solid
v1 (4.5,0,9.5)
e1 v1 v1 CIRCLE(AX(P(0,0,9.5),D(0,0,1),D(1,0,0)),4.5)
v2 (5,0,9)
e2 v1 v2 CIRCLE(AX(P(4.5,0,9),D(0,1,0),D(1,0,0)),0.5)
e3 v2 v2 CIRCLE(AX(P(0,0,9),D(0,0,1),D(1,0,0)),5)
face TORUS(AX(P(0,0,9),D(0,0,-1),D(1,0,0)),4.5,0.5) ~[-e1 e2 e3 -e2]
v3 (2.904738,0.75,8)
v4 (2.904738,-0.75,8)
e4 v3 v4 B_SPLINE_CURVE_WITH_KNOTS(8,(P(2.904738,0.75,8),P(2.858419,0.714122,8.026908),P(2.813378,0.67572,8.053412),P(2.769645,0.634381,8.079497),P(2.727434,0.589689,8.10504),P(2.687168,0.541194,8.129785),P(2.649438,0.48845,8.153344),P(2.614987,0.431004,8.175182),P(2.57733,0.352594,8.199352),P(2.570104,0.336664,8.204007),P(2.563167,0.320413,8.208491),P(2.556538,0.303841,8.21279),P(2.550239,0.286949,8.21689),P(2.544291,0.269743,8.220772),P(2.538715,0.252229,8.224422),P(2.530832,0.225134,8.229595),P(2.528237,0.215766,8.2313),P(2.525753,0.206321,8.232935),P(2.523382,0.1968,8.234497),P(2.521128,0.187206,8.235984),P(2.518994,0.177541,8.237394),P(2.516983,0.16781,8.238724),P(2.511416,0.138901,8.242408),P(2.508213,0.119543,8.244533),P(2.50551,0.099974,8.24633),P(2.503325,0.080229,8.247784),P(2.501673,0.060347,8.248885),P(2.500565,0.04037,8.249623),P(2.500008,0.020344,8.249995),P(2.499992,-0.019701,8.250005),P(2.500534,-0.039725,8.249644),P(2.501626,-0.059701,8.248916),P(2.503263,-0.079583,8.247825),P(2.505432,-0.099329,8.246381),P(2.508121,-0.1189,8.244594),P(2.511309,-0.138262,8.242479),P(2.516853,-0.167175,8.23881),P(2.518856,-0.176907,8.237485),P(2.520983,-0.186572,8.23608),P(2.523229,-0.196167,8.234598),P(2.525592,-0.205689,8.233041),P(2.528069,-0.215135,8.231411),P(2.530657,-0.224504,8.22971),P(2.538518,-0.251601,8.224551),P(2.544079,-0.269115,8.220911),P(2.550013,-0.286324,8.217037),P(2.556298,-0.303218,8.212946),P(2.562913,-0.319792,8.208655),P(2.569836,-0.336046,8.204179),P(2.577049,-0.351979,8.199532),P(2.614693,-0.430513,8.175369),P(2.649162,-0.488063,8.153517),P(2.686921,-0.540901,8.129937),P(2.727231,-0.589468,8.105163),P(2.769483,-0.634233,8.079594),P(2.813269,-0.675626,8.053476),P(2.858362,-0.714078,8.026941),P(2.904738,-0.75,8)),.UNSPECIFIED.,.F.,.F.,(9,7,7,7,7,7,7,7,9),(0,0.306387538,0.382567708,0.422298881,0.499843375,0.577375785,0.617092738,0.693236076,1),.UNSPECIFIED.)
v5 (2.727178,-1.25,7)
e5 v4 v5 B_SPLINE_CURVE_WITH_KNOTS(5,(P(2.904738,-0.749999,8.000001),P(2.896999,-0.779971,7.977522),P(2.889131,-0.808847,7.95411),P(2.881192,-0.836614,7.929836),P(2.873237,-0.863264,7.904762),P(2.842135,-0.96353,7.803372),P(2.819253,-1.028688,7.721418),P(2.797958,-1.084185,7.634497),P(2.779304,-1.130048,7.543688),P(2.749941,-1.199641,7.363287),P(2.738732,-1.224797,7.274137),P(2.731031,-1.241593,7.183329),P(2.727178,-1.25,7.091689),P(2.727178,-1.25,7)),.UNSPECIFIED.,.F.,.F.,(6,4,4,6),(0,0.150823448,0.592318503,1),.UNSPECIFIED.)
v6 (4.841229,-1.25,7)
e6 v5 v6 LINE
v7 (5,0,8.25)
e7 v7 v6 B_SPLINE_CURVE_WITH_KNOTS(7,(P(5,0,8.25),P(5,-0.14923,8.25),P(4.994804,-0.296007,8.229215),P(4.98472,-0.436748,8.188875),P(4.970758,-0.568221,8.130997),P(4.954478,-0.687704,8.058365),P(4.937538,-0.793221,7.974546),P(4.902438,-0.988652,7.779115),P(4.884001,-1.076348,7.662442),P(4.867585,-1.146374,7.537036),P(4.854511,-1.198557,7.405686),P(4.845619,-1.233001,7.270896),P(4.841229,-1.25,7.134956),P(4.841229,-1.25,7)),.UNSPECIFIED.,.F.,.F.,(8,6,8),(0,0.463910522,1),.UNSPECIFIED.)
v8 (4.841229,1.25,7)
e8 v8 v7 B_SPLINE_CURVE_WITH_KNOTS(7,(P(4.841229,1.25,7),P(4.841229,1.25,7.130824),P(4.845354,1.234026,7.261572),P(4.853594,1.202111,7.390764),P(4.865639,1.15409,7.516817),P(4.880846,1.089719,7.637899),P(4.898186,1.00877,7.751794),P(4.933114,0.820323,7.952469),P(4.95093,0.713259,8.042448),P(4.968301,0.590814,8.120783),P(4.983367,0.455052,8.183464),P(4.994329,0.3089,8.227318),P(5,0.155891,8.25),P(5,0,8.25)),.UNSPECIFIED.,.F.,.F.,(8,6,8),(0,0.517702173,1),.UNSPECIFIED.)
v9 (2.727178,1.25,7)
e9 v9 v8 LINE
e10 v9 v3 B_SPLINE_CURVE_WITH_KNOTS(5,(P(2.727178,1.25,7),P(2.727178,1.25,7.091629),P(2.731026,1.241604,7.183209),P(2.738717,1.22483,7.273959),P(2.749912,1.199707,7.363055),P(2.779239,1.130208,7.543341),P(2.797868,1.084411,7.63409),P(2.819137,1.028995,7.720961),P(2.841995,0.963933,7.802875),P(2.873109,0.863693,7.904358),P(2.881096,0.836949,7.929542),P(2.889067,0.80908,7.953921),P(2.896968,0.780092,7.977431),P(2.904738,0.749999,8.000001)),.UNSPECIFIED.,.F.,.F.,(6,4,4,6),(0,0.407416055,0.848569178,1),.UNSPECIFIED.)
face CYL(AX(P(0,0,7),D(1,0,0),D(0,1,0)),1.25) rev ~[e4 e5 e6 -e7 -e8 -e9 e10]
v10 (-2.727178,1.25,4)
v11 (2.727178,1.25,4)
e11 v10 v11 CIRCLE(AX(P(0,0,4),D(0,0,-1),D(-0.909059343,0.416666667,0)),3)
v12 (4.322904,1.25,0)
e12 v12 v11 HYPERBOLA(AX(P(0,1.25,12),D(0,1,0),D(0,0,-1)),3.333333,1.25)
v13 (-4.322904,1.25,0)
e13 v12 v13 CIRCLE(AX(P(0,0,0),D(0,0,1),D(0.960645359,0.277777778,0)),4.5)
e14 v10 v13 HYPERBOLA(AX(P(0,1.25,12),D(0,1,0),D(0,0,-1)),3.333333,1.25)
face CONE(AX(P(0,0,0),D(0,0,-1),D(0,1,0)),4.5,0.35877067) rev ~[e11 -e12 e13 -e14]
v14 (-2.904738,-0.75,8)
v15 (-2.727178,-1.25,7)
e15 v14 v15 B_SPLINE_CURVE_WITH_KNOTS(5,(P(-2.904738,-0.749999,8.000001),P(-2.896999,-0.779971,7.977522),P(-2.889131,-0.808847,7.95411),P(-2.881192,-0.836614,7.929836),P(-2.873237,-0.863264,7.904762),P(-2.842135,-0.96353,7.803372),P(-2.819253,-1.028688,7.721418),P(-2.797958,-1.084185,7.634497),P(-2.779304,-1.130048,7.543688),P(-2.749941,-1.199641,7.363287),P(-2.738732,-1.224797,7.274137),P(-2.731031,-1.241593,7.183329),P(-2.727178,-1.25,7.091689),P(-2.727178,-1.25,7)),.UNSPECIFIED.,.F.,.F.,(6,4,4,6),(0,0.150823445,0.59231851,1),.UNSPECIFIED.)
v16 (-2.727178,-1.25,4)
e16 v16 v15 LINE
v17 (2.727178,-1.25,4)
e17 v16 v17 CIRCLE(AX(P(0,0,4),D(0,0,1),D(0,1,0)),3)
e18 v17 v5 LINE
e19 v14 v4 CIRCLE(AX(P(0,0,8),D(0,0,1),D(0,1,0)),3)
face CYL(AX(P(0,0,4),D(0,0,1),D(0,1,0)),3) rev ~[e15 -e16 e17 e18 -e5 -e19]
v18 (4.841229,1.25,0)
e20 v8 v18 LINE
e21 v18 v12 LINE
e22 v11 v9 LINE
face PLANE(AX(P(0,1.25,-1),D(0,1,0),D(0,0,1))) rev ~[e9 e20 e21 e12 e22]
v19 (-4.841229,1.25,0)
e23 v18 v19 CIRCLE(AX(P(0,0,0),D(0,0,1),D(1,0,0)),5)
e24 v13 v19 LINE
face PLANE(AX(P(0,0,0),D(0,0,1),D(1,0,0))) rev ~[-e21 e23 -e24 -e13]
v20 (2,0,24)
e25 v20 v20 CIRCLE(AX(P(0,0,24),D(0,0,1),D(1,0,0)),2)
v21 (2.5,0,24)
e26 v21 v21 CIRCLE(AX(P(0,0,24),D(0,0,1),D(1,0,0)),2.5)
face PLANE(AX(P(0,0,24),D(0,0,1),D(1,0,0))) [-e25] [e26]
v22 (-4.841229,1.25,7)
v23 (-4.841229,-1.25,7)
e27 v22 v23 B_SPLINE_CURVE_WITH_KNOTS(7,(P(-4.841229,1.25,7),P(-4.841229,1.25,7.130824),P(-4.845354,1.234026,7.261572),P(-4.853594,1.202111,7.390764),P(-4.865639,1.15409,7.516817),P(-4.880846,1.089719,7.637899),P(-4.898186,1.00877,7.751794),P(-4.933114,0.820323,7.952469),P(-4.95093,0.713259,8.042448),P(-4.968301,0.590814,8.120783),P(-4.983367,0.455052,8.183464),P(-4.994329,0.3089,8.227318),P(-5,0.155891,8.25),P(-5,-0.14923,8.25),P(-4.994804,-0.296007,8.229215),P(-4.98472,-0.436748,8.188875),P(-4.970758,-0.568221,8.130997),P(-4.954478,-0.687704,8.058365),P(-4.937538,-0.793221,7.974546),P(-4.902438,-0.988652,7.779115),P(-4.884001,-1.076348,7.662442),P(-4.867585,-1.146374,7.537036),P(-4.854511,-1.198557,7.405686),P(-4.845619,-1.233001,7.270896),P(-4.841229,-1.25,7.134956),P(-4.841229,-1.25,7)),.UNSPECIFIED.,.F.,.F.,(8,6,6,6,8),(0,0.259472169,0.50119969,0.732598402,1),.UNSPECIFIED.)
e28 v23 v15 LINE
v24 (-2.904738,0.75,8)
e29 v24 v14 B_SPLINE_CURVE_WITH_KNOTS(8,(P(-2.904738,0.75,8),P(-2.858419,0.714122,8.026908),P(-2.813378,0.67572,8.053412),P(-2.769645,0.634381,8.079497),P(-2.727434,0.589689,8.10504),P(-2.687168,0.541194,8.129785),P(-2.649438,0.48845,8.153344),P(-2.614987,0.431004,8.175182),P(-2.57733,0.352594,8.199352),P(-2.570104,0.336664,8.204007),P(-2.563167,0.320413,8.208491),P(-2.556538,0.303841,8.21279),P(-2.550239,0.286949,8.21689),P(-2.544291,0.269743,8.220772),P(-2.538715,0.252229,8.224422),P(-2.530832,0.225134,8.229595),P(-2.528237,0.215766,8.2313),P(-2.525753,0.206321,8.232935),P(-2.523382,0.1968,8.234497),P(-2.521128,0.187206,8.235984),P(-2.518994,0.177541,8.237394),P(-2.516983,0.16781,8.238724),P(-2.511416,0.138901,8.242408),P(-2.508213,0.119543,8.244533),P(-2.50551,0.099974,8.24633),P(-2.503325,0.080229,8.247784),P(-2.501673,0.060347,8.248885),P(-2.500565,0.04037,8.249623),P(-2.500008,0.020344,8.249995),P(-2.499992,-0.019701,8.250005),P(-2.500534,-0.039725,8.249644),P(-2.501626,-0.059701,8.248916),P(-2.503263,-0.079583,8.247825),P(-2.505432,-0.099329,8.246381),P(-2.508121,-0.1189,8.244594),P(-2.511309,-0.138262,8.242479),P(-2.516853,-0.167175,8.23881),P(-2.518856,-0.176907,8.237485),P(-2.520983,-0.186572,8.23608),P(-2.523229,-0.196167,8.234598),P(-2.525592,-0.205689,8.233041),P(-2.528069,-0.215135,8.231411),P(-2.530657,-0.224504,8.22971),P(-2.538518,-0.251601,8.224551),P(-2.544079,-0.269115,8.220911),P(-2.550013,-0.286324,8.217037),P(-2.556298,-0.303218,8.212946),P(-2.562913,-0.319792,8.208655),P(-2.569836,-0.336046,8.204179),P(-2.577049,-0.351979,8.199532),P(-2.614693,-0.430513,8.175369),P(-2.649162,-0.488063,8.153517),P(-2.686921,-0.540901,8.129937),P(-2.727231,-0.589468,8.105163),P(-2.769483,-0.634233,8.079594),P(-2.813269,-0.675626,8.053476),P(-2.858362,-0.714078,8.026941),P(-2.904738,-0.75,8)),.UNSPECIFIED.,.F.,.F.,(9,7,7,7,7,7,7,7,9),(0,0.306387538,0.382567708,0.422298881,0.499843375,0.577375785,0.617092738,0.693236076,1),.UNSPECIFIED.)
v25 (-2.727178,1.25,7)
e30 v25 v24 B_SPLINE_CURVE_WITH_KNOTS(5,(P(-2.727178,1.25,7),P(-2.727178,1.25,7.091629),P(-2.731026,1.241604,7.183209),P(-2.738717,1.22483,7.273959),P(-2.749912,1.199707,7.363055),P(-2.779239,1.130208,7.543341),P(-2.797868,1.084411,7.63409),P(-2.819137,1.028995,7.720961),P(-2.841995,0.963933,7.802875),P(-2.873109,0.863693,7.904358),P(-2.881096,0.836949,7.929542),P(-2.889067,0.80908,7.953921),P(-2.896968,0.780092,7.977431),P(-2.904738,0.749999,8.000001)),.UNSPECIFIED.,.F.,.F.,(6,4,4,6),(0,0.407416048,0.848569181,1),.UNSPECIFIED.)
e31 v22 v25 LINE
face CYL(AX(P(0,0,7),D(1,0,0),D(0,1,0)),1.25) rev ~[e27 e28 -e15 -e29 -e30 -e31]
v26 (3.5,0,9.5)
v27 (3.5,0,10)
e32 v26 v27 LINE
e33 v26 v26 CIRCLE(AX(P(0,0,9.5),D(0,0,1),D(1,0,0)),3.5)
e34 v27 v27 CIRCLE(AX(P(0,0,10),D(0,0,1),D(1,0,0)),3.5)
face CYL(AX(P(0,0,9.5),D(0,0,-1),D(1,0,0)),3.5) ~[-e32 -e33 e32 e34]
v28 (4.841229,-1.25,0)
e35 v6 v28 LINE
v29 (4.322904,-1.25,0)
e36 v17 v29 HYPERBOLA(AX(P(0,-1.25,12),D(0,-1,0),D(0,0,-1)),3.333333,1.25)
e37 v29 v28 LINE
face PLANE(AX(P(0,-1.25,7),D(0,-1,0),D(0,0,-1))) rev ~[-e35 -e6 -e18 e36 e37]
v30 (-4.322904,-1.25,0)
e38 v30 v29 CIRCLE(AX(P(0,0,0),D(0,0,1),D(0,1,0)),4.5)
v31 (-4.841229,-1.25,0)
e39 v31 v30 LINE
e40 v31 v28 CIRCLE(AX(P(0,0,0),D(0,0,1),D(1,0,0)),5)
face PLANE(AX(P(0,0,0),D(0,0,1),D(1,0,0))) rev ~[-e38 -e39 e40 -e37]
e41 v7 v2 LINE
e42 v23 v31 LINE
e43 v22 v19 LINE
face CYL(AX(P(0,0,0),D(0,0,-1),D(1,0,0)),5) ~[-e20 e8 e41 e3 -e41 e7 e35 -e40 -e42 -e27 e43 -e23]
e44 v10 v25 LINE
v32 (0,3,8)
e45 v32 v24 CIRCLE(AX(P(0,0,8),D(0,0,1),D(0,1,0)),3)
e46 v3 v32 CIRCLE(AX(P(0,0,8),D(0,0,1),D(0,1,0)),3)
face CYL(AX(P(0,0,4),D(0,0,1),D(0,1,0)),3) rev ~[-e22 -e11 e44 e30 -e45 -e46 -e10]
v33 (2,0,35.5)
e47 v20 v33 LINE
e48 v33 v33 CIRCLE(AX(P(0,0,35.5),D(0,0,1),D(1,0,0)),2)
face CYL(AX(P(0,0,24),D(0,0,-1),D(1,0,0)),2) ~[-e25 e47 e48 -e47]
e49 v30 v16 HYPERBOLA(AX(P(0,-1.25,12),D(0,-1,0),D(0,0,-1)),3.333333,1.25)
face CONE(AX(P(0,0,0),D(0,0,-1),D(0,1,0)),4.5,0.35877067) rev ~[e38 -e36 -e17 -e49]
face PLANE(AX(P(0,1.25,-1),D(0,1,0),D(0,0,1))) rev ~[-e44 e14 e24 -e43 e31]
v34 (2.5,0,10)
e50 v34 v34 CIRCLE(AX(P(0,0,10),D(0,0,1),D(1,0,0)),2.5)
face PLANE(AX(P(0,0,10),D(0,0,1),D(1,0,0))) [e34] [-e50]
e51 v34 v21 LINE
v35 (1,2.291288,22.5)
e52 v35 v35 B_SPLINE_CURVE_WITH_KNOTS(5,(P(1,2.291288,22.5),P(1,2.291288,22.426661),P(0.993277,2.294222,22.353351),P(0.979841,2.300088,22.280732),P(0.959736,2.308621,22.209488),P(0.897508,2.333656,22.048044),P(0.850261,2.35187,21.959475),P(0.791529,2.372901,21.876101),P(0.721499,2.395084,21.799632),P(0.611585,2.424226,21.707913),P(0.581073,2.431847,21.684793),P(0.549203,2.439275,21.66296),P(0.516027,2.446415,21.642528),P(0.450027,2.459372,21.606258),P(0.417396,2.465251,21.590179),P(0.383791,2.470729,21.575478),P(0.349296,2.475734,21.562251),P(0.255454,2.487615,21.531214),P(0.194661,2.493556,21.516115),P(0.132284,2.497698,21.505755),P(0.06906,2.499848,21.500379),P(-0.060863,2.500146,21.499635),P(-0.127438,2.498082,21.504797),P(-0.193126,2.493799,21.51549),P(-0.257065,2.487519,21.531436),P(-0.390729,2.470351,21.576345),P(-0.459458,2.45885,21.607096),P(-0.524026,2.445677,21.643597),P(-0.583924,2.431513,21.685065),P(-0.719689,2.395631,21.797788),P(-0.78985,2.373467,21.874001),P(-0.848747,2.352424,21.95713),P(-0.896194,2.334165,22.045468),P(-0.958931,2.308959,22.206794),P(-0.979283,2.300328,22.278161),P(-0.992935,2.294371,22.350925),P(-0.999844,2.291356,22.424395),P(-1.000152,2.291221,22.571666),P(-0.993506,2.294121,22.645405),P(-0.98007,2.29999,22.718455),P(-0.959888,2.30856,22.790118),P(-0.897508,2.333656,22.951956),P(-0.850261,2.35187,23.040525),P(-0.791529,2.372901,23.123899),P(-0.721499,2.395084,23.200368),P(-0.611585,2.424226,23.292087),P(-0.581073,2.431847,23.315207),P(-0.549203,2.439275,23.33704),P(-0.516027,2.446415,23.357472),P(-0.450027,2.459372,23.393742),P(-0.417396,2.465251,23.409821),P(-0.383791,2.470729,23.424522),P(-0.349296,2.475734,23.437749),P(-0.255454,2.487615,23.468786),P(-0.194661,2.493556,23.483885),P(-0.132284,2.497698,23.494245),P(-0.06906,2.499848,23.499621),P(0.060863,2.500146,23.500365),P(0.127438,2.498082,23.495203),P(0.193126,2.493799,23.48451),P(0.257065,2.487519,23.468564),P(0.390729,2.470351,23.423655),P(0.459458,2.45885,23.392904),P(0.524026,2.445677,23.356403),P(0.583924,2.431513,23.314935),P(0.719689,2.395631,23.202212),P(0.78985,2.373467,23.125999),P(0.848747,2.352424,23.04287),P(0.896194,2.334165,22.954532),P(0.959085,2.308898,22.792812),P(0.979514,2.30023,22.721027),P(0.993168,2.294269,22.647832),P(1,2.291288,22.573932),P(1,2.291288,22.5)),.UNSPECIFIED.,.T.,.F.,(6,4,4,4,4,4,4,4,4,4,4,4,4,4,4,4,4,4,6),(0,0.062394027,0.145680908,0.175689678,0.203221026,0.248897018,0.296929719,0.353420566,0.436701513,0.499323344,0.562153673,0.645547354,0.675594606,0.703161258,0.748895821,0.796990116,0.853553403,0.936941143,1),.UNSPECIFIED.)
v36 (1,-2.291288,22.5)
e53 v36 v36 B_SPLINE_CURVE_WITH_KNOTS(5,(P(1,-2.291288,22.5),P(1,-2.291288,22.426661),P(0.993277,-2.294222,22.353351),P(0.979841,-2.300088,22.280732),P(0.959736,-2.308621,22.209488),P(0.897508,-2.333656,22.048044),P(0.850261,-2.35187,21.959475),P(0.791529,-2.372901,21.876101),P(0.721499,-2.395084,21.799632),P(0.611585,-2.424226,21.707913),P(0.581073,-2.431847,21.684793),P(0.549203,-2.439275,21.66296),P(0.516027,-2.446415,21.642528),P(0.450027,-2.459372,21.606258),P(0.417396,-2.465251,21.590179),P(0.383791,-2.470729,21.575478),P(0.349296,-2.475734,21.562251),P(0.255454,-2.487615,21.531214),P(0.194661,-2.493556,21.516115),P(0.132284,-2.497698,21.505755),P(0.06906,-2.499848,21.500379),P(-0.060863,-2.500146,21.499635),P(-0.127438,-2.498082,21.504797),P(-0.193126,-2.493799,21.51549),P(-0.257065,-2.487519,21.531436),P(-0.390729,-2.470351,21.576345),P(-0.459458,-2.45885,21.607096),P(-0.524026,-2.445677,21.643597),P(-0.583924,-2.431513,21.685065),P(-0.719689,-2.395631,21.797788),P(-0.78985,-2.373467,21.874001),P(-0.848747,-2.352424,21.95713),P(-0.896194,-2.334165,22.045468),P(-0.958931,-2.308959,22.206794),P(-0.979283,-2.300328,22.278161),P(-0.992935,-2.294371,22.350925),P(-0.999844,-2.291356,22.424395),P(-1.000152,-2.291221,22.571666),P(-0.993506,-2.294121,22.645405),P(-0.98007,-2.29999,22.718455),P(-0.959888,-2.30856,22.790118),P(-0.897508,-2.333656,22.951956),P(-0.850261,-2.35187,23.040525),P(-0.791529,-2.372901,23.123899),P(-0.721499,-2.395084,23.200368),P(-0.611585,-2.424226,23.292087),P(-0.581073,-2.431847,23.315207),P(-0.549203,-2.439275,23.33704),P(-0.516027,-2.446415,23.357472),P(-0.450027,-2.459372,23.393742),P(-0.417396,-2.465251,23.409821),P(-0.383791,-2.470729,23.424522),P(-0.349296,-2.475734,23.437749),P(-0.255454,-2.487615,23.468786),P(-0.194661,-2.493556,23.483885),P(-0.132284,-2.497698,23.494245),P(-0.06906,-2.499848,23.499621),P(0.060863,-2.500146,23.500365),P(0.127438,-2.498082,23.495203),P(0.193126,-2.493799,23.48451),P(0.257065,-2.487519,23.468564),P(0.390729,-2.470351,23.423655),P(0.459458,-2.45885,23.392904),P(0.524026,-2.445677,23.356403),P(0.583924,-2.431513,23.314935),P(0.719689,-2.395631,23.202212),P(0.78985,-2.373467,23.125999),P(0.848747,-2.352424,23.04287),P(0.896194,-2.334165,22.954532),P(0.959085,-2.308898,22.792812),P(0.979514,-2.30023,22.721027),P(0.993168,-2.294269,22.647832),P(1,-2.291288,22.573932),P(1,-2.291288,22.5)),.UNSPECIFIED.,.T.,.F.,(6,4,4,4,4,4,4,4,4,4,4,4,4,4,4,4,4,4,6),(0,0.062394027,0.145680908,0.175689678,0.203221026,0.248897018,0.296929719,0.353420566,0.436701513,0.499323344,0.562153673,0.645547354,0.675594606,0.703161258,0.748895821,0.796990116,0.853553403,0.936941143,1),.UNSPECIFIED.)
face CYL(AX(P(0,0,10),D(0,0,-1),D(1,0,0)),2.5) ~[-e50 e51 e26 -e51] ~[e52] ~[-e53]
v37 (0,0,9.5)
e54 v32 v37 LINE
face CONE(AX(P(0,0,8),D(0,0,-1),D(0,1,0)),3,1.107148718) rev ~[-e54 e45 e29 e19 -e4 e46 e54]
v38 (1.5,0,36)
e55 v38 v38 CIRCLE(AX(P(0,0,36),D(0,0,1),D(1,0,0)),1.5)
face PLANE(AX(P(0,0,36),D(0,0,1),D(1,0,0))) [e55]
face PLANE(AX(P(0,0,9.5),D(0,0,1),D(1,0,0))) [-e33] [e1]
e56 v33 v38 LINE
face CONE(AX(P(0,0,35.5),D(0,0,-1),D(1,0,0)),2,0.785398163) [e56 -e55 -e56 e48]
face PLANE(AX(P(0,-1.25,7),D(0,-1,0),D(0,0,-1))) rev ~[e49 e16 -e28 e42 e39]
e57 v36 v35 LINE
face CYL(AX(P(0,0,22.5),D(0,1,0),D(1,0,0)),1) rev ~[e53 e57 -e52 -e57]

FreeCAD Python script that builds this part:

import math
import FreeCAD as App
import Part
import Sketcher


def edges_at(feature, points):
    """Names of the edges that pass closest to the given points."""
    edges = feature.Shape.Edges
    near = lambda p: min(range(len(edges)), key=lambda i: edges[i].distToShape(Part.Vertex(*p))[0])
    return sorted({f"Edge{near(p) + 1}" for p in points})

doc = App.newDocument("Part")
body = doc.addObject("PartDesign::Body", "Body")

# Sketch on XY plane
sketch1 = body.newObject("Sketcher::SketchObject", "Sketch")
sketch1.AttachmentSupport = (doc.getObject("XY_Plane"), [""])
sketch1.MapMode = "FlatFace"
sketch1.addGeometry(Part.Circle(App.Vector(0, 0, 0), App.Vector(0, 0, 1), 5), False)
sketch1.addConstraint([
    Sketcher.Constraint("Coincident", 0, 3, -1, 1),
    Sketcher.Constraint("Diameter", 0, 10.0),
])
pad1 = body.newObject("PartDesign::Pad", "Pad")
pad1.Profile = sketch1
pad1.Length = 9.5

# Sketch on XY plane
sketch2 = body.newObject("Sketcher::SketchObject", "Sketch001")
sketch2.AttachmentSupport = (doc.getObject("XY_Plane"), [""])
sketch2.MapMode = "FlatFace"
sketch2.AttachmentOffset = App.Placement(App.Vector(0, 0, 9.5), App.Rotation())
sketch2.addGeometry(Part.Circle(App.Vector(0, 0, 0), App.Vector(0, 0, 1), 3.5), False)
sketch2.addConstraint([
    Sketcher.Constraint("Coincident", 0, 3, -1, 1),
    Sketcher.Constraint("Diameter", 0, 7.0),
])
pad2 = body.newObject("PartDesign::Pad", "Pad001")
pad2.Profile = sketch2
pad2.Length = 0.5

# Sketch on XY plane
sketch3 = body.newObject("Sketcher::SketchObject", "Sketch002")
sketch3.AttachmentSupport = (doc.getObject("XY_Plane"), [""])
sketch3.MapMode = "FlatFace"
sketch3.AttachmentOffset = App.Placement(App.Vector(0, 0, 10), App.Rotation())
sketch3.addGeometry(Part.Circle(App.Vector(0, 0, 0), App.Vector(0, 0, 1), 2.5), False)
sketch3.addConstraint([
    Sketcher.Constraint("Coincident", 0, 3, -1, 1),
    Sketcher.Constraint("Diameter", 0, 5.0),
])
pad3 = body.newObject("PartDesign::Pad", "Pad002")
pad3.Profile = sketch3
pad3.Length = 14

# Sketch on XY plane
sketch4 = body.newObject("Sketcher::SketchObject", "Sketch003")
sketch4.AttachmentSupport = (doc.getObject("XY_Plane"), [""])
sketch4.MapMode = "FlatFace"
sketch4.AttachmentOffset = App.Placement(App.Vector(0, 0, 24), App.Rotation())
sketch4.addGeometry(Part.Circle(App.Vector(0, 0, 0), App.Vector(0, 0, 1), 2), False)
sketch4.addConstraint([
    Sketcher.Constraint("Coincident", 0, 3, -1, 1),
    Sketcher.Constraint("Diameter", 0, 4.0),
])
pad4 = body.newObject("PartDesign::Pad", "Pad003")
pad4.Profile = sketch4
pad4.Length = 12
doc.recompute()

chamfer = body.newObject("PartDesign::Chamfer", "Chamfer")
chamfer.Base = (pad4, edges_at(pad4, [(-2, 0, 36)]))
chamfer.Size = 0.5
doc.recompute()

fillet = body.newObject("PartDesign::Fillet", "Fillet")
fillet.Base = (chamfer, edges_at(chamfer, [(-5, 0, 9.5)]))
fillet.Radius = 0.5

# Sketch on YZ plane
sketch5 = body.newObject("Sketcher::SketchObject", "Sketch004")
sketch5.AttachmentSupport = (doc.getObject("YZ_Plane"), [""])
sketch5.MapMode = "FlatFace"
sketch5.addGeometry([
    Part.LineSegment(App.Vector(1.25, -1, 0), App.Vector(1.25, 7, 0)),
    Part.ArcOfCircle(Part.Circle(App.Vector(0, 7, 0), App.Vector(0, 0, 1), 1.25), math.radians(0), math.radians(180)),
    Part.LineSegment(App.Vector(-1.25, 7, 0), App.Vector(-1.25, -1, 0)),
    Part.LineSegment(App.Vector(-1.25, -1, 0), App.Vector(1.25, -1, 0)),
], False)
sketch5.addConstraint([
    Sketcher.Constraint("Tangent", 0, 2, 1, 1),
    Sketcher.Constraint("Tangent", 1, 2, 2, 1),
    Sketcher.Constraint("Coincident", 2, 2, 3, 1),
    Sketcher.Constraint("Coincident", 3, 2, 0, 1),
    Sketcher.Constraint("Vertical", 0),
    Sketcher.Constraint("Vertical", 2),
    Sketcher.Constraint("Horizontal", 3),
    Sketcher.Constraint("PointOnObject", 1, 3, -2),
    Sketcher.Constraint("DistanceY", 0, 1, 0, 2, 8.0),
    Sketcher.Constraint("Radius", 1, 1.25),
    Sketcher.Constraint("DistanceY", -1, 1, 1, 3, 7.0),
])
pocket1 = body.newObject("PartDesign::Pocket", "Pocket")
pocket1.Profile = sketch5
pocket1.Length = 32
pocket1.Midplane = True

# Sketch on YZ plane
sketch6 = body.newObject("Sketcher::SketchObject", "Sketch005")
sketch6.AttachmentSupport = (doc.getObject("YZ_Plane"), [""])
sketch6.MapMode = "FlatFace"
sketch6.addGeometry([
    Part.LineSegment(App.Vector(4.5, 0, 0), App.Vector(3, 4, 0)),  # 0
    Part.LineSegment(App.Vector(3, 4, 0), App.Vector(3, 8, 0)),  # 1
    Part.LineSegment(App.Vector(3, 8, 0), App.Vector(0, 9.5, 0)),  # 2
    Part.LineSegment(App.Vector(0, 9.5, 0), App.Vector(0, 0, 0)),  # 3
    Part.LineSegment(App.Vector(0, 0, 0), App.Vector(4.5, 0, 0)),  # 4
], False)
sketch6.addConstraint([
    Sketcher.Constraint("Coincident", 0, 2, 1, 1),
    Sketcher.Constraint("Coincident", 1, 2, 2, 1),
    Sketcher.Constraint("Coincident", 2, 2, 3, 1),
    Sketcher.Constraint("Coincident", 3, 2, 4, 1),
    Sketcher.Constraint("Coincident", 4, 2, 0, 1),
    Sketcher.Constraint("Vertical", 1),
    Sketcher.Constraint("Vertical", 3),
    Sketcher.Constraint("Horizontal", 4),
    Sketcher.Constraint("Coincident", 3, 2, -1, 1),
    Sketcher.Constraint("DistanceY", 1, 1, 1, 2, 4.0),
    Sketcher.Constraint("DistanceX", 4, 1, 4, 2, 4.5),
    Sketcher.Constraint("DistanceY", 3, 2, 3, 1, 9.5),
    Sketcher.Constraint("DistanceX", -1, 1, 0, 2, 3.0),
    Sketcher.Constraint("DistanceY", -1, 1, 0, 2, 4.0),
])
groove = body.newObject("PartDesign::Groove", "Groove")
groove.Profile = sketch6
groove.ReferenceAxis = (sketch6, ["V_Axis"])
groove.Angle = 360

# Sketch on XZ plane
sketch7 = body.newObject("Sketcher::SketchObject", "Sketch006")
sketch7.AttachmentSupport = (doc.getObject("XZ_Plane"), [""])
sketch7.MapMode = "FlatFace"
sketch7.addGeometry(Part.Circle(App.Vector(0, 22.5, 0), App.Vector(0, 0, 1), 1), False)
sketch7.addConstraint([
    Sketcher.Constraint("PointOnObject", 0, 3, -2),
    Sketcher.Constraint("Diameter", 0, 2.0),
    Sketcher.Constraint("DistanceY", -1, 1, 0, 3, 22.5),
])
pocket2 = body.newObject("PartDesign::Pocket", "Pocket001")
pocket2.Profile = sketch7
pocket2.Length = 20
pocket2.Midplane = True

doc.recompute()
